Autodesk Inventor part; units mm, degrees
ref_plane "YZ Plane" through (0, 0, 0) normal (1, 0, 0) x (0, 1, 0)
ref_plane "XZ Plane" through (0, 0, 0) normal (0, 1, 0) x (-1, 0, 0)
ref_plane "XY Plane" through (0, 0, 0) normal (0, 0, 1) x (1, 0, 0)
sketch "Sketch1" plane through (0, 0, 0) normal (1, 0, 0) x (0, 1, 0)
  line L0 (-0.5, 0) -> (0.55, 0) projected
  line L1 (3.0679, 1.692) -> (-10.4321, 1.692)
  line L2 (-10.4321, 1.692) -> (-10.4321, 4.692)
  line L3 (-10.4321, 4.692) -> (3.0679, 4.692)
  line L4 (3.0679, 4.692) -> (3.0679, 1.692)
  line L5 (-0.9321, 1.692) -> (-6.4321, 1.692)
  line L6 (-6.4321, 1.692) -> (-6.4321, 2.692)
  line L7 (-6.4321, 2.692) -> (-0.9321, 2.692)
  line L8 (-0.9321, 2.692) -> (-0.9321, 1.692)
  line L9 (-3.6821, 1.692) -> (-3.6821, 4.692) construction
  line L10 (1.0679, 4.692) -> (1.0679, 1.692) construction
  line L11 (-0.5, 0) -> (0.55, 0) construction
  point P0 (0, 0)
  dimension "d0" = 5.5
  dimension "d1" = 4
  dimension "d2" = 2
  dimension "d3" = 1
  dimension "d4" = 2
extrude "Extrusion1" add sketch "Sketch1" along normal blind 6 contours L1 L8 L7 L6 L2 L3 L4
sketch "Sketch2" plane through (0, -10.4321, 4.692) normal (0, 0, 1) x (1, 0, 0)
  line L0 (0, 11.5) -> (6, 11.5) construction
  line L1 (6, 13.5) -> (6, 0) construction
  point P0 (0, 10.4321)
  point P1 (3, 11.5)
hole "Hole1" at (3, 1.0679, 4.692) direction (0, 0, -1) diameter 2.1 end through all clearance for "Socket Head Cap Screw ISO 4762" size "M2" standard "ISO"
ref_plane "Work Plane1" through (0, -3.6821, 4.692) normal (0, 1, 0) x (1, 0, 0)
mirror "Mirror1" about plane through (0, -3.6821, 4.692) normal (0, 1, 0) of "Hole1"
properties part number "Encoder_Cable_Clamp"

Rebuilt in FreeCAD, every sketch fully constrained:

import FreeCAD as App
import Part
import Sketcher
from FreeCAD import Vector


def add_polygon(sketch, points):
    """Adds a closed chain of lines whose ends are joined by coincident constraints."""
    first, n = sketch.GeometryCount, len(points)
    for a, b in zip(points, points[1:] + points[:1]):
        sketch.addGeometry(Part.LineSegment(App.Vector(*a, 0), App.Vector(*b, 0)), False)
    for i in range(n):
        sketch.addConstraint(Sketcher.Constraint("Coincident", first + i, 2, first + (i + 1) % n, 1))

doc = App.newDocument("Part")
params = doc.addObject("Spreadsheet::Sheet", "Params")
for row, (alias, value) in enumerate([
    ("sketch1_width", "4 mm"),
    ("sketch1_height", "1 mm"),
    ("sketch1_width2", "5.5 mm"),
    ("pad1_length", "6 mm"),
    ("sketch2_diameter", "2.1 mm"),
    ("hole_diameter", "2.1 mm"),
], start=1):
    params.set(f"A{row}", alias)
    params.set(f"B{row}", "=" + value)
    params.setAlias(f"B{row}", alias)

body = doc.addObject("PartDesign::Body", "Body")

sketch1 = doc.addObject("Sketcher::SketchObject", "Sketch")
body.addObject(sketch1)
sketch1.AttachmentSupport = (doc.YZ_Plane, [""])
sketch1.MapMode = "FlatFace"
add_polygon(sketch1, [(-0.9, 1.7), (3.1, 1.7), (3.1, 4.7), (-10.4, 4.7), (-10.4, 1.7), (-6.4, 1.7), (-6.4, 2.7), (-0.9, 2.7)])
sketch1.addConstraint([
    Sketcher.Constraint("Horizontal", 0),
    Sketcher.Constraint("Vertical", 1),
    Sketcher.Constraint("Horizontal", 2),
    Sketcher.Constraint("Vertical", 3),
    Sketcher.Constraint("Horizontal", 4),
    Sketcher.Constraint("Vertical", 5),
    Sketcher.Constraint("Horizontal", 6),
    Sketcher.Constraint("Vertical", 7),
    Sketcher.Constraint("Horizontal", 0, 2, 3, 2),
    Sketcher.Constraint("Equal", 0, 4),
    Sketcher.Constraint("DistanceX", 0, 1, 0, 2, 4.0),
    Sketcher.Constraint("DistanceY", 5, 1, 5, 2, 1.0),
    Sketcher.Constraint("DistanceX", 6, 1, 6, 2, 5.5),
    Sketcher.Constraint("DistanceY", 5, 2, 2, 2, 2.0),
    Sketcher.Constraint("DistanceX", -1, 1, 0, 2, 3.068),
    Sketcher.Constraint("DistanceY", -1, 1, 0, 2, 1.692),
])
sketch1.setExpression("Constraints[18]", "Params.sketch1_width")
sketch1.setExpression("Constraints[19]", "Params.sketch1_height")
sketch1.setExpression("Constraints[20]", "Params.sketch1_width2")
pad1 = doc.addObject("PartDesign::Pad", "Pad")
body.addObject(pad1)
pad1.Profile = sketch1
pad1.setExpression("Length", "Params.pad1_length")

sketch2 = doc.addObject("Sketcher::SketchObject", "Sketch001")
body.addObject(sketch2)
sketch2.AttachmentSupport = (doc.XY_Plane, [""])
sketch2.MapMode = "FlatFace"
sketch2.AttachmentOffset = App.Placement(Vector(0, 0, 4.692), App.Rotation())
sketch2.addGeometry(Part.Circle(Vector(3, 1.1, 0), Vector(0, 0, 1), 1.1), False)
sketch2.addConstraint([
    Sketcher.Constraint("Diameter", 0, 2.1),
    Sketcher.Constraint("DistanceX", -1, 1, 0, 3, 3.0),
    Sketcher.Constraint("DistanceY", -1, 1, 0, 3, 1.068),
])
sketch2.setExpression("Constraints[0]", "Params.sketch2_diameter")
doc.recompute()
hole = doc.addObject("PartDesign::Hole", "Hole")
body.addObject(hole)
hole.Profile = sketch2
hole.ThreadType = "None"
hole.setExpression("Diameter", "Params.hole_diameter")
hole.DepthType = "ThroughAll"
doc.recompute()

datumplane = doc.addObject("PartDesign::Plane", "DatumPlane")
body.addObject(datumplane)
datumplane.AttachmentSupport = (doc.XZ_Plane, [""])
datumplane.MapMode = "FlatFace"
datumplane.AttachmentOffset = App.Placement(Vector(0, 0, 3.6821), App.Rotation())
mirrored = doc.addObject("PartDesign::Mirrored", "Mirrored")
body.addObject(mirrored)
mirrored.Originals = [hole]
mirrored.MirrorPlane = (datumplane, [""])
body.Tip = mirrored

doc.recompute()
